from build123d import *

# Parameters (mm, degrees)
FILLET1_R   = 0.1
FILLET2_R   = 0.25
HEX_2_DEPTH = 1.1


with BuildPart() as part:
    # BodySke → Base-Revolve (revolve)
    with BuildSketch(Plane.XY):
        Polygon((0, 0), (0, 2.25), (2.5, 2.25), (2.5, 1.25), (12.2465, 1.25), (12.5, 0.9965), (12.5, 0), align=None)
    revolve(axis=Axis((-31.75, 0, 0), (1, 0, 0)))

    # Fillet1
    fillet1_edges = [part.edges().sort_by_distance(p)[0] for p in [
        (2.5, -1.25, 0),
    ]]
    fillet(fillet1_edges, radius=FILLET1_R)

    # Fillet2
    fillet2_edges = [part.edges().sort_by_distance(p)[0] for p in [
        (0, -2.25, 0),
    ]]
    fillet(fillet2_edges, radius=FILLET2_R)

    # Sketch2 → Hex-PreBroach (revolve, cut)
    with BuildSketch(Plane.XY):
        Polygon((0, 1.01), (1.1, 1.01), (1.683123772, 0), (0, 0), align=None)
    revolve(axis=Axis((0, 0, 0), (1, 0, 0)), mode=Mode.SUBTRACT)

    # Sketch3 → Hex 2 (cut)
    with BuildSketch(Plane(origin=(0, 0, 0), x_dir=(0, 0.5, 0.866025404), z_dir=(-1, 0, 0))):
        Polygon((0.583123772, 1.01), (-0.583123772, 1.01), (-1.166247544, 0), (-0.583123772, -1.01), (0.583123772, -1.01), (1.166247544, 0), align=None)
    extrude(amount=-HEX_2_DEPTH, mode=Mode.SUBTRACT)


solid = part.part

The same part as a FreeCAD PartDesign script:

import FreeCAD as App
import Part
import Sketcher

V = App.Vector
Q = App.Units.Quantity


def edges_at(feature, points):
    """Names of the edges that pass closest to the given points."""
    edges = feature.Shape.Edges
    near = lambda p: min(range(len(edges)), key=lambda i: edges[i].distToShape(Part.Vertex(*p))[0])
    return sorted({f"Edge{near(p) + 1}" for p in points})


def add_polygon(sketch, points):
    """Adds a closed chain of lines whose ends are joined by coincident constraints."""
    first, n = sketch.GeometryCount, len(points)
    for a, b in zip(points, points[1:] + points[:1]):
        sketch.addGeometry(Part.LineSegment(App.Vector(*a, 0), App.Vector(*b, 0)), False)
    for i in range(n):
        sketch.addConstraint(Sketcher.Constraint("Coincident", first + i, 2, first + (i + 1) % n, 1))

doc = App.newDocument("Part")
body = doc.addObject("PartDesign::Body", "Body")

sketch1 = doc.addObject("Sketcher::SketchObject", "Sketch")
body.addObject(sketch1)
sketch1.AttachmentSupport = (doc.XY_Plane, [""])
sketch1.MapMode = "FlatFace"
add_polygon(sketch1, [(0, 2.25), (0, 0), (12.5, 0), (12.5, 1), (12.25, 1.25), (2.5, 1.25), (2.5, 2.25)])
sketch1.addConstraint([
    Sketcher.Constraint("Vertical", 0),
    Sketcher.Constraint("Horizontal", 1),
    Sketcher.Constraint("Vertical", 2),
    Sketcher.Constraint("Horizontal", 4),
    Sketcher.Constraint("Vertical", 5),
    Sketcher.Constraint("Horizontal", 6),
    Sketcher.Constraint("Coincident", 0, 2, -1, 1),
    Sketcher.Constraint("DistanceY", 5, 1, 5, 2, Q("1 mm")),
    Sketcher.Constraint("Angle", 3, Q("135 deg")),
    Sketcher.Constraint("DistanceX", 1, 1, 1, 2, Q("12.5 mm")),
    Sketcher.Constraint("DistanceX", 6, 2, 6, 1, Q("2.5 mm")),
    Sketcher.Constraint("DistanceY", 0, 2, 0, 1, Q("2.25 mm")),
    Sketcher.Constraint("DistanceX", 4, 2, 4, 1, Q("9.7465 mm")),
])
revolution = doc.addObject("PartDesign::Revolution", "Revolution")
body.addObject(revolution)
revolution.Profile = sketch1
revolution.ReferenceAxis = (sketch1, ["H_Axis"])
revolution.Angle = 360
doc.recompute()

fillet = doc.addObject("PartDesign::Fillet", "Fillet")
body.addObject(fillet)
fillet.Base = (revolution, edges_at(revolution, [(2.5, -1.25, 0)]))
fillet.Radius = 0.1
doc.recompute()

fillet2 = doc.addObject("PartDesign::Fillet", "Fillet001")
body.addObject(fillet2)
fillet2.Base = (fillet, edges_at(fillet, [(0, -2.25, 0)]))
fillet2.Radius = 0.25

sketch2 = doc.addObject("Sketcher::SketchObject", "Sketch001")
body.addObject(sketch2)
sketch2.AttachmentSupport = (doc.XY_Plane, [""])
sketch2.MapMode = "FlatFace"
add_polygon(sketch2, [(1.1, 1), (0, 1), (0, 0), (1.7, 0)])
sketch2.addConstraint([
    Sketcher.Constraint("Horizontal", 0),
    Sketcher.Constraint("Vertical", 1),
    Sketcher.Constraint("Horizontal", 2),
    Sketcher.Constraint("Coincident", 1, 2, -1, 1),
    Sketcher.Constraint("Angle", 3, Q("120 deg")),
    Sketcher.Constraint("DistanceX", 0, 2, 0, 1, Q("1.1 mm")),
    Sketcher.Constraint("DistanceY", 1, 2, 1, 1, Q("1.01 mm")),
])
groove = doc.addObject("PartDesign::Groove", "Groove")
body.addObject(groove)
groove.Profile = sketch2
groove.ReferenceAxis = (sketch2, ["H_Axis"])
groove.Angle = 360

sketch3 = doc.addObject("Sketcher::SketchObject", "Sketch002")
body.addObject(sketch3)
sketch3.AttachmentSupport = (doc.YZ_Plane, [""])
sketch3.MapMode = "FlatFace"
add_polygon(sketch3, [(1.2, 0), (0.6, -1), (-0.6, -1), (-1.2, 0), (-0.6, 1), (0.6, 1)])
sketch3.addConstraint([
    Sketcher.Constraint("Horizontal", 1),
    Sketcher.Constraint("Horizontal", 4),
    Sketcher.Constraint("Symmetric", 0, 2, 3, 2, -1, 1),
    Sketcher.Constraint("Symmetric", 2, 2, 5, 2, -1, 1),
    Sketcher.Constraint("PointOnObject", 2, 2, -1),
    Sketcher.Constraint("Parallel", 2, 5),
    Sketcher.Constraint("Vertical", 1, 2, 3, 2),
    Sketcher.Constraint("Angle", 0, Q("-120 deg")),
    Sketcher.Constraint("DistanceY", 0, 2, -1, 1, Q("1.01 mm")),
    Sketcher.Constraint("DistanceX", 1, 2, 1, 1, Q("1.166248 mm")),
])
pocket1 = doc.addObject("PartDesign::Pocket", "Pocket")
body.addObject(pocket1)
pocket1.Profile = sketch3
pocket1.Length = 1.1
pocket1.Reversed = True

doc.recompute()
